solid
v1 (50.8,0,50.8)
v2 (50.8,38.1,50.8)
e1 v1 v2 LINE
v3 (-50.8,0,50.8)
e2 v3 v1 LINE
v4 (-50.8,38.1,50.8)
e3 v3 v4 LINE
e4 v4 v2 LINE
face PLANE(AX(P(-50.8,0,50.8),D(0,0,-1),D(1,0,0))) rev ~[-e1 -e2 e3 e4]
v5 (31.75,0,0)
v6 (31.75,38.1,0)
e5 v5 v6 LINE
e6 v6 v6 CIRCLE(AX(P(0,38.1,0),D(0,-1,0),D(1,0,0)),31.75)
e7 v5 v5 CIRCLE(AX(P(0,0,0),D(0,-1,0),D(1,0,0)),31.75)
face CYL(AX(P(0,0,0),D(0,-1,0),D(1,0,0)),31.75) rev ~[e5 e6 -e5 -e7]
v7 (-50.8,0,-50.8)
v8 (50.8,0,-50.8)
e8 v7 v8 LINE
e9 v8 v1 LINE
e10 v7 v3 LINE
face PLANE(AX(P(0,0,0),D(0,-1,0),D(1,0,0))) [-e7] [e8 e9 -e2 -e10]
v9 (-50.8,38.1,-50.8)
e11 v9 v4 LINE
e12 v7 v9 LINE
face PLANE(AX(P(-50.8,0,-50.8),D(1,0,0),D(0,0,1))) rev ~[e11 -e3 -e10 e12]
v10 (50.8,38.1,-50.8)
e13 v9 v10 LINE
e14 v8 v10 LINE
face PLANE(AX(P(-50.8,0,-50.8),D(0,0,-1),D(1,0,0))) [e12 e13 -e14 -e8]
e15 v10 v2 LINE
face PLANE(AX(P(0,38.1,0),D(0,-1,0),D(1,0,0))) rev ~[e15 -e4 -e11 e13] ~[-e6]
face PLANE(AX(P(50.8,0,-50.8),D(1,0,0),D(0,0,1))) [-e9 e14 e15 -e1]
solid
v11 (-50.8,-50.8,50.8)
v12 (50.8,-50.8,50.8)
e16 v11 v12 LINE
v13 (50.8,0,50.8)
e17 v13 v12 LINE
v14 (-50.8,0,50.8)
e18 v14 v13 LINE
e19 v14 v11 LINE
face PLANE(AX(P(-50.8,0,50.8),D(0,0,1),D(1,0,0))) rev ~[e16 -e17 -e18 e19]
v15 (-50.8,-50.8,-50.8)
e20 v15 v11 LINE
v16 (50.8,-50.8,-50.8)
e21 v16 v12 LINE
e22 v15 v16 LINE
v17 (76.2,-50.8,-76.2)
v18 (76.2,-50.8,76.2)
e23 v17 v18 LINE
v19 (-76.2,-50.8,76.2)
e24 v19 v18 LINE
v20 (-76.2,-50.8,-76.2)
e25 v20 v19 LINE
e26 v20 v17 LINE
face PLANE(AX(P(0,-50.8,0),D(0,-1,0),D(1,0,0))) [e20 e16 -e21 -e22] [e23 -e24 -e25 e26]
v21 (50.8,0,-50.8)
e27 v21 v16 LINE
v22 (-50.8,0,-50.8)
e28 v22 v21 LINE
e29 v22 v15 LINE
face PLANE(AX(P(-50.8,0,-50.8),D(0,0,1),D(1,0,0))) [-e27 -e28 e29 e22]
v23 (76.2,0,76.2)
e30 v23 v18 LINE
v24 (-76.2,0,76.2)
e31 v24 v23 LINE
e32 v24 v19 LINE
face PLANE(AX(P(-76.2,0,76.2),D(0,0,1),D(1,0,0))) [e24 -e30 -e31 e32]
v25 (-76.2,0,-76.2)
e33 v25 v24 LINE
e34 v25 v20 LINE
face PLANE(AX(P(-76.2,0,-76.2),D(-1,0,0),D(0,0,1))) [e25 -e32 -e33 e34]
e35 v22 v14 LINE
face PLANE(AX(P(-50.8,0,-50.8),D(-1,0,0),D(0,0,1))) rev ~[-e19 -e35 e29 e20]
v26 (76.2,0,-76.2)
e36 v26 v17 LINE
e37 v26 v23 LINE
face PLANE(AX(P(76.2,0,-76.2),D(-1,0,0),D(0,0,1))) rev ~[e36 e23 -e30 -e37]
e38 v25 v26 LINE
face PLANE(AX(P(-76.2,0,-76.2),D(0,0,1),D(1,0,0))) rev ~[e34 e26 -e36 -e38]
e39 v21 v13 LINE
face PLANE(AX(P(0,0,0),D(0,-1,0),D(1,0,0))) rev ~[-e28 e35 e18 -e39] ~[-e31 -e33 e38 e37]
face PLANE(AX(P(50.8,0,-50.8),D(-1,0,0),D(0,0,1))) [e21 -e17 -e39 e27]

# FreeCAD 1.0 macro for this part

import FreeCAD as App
import Part
import Sketcher
from FreeCAD import Vector
Q = App.Units.Quantity

doc = App.newDocument("Part")
body = doc.addObject("PartDesign::Body", "Body")
body.AllowCompound = True

# Sketch on XZ plane
sketch1 = body.newObject("Sketcher::SketchObject", "Sketch")
sketch1.AttachmentSupport = (doc.getObject("XZ_Plane"), [""])
sketch1.MapMode = "FlatFace"
sketch1.addGeometry(Part.LineSegment(Vector(-50.8, 50.8, 0), Vector(-50.8, -50.8, 0)), False)
sketch1.addGeometry(Part.LineSegment(Vector(-50.8, -50.8, 0), Vector(50.8, -50.8, 0)), False)
sketch1.addGeometry(Part.LineSegment(Vector(50.8, -50.8, 0), Vector(50.8, 50.8, 0)), False)
sketch1.addGeometry(Part.LineSegment(Vector(50.8, 50.8, 0), Vector(-50.8, 50.8, 0)), False)
sketch1.addGeometry(Part.Circle(Vector(0, 0, 0), Vector(0, 0, 1), 31.75), False)
sketch1.addConstraint(Sketcher.Constraint("Coincident", 0, 2, 1, 1))
sketch1.addConstraint(Sketcher.Constraint("Coincident", 1, 2, 2, 1))
sketch1.addConstraint(Sketcher.Constraint("Coincident", 2, 2, 3, 1))
sketch1.addConstraint(Sketcher.Constraint("Coincident", 3, 2, 0, 1))
sketch1.addConstraint(Sketcher.Constraint("Vertical", 0))
sketch1.addConstraint(Sketcher.Constraint("Horizontal", 1))
sketch1.addConstraint(Sketcher.Constraint("Vertical", 2))
sketch1.addConstraint(Sketcher.Constraint("Horizontal", 3))
sketch1.addConstraint(Sketcher.Constraint("Coincident", 4, 3, -1, 1))
sketch1.addConstraint(Sketcher.Constraint("Symmetric", 0, 2, 2, 2, -1, 1))
sketch1.addConstraint(Sketcher.Constraint("Equal", 3, 0))
sketch1.addConstraint(Sketcher.Constraint("Diameter", 4, Q("2.5 in")))
sketch1.addConstraint(Sketcher.Constraint("DistanceX", 1, 1, 1, 2, Q("4 in")))
pad1 = body.newObject("PartDesign::Pad", "Pad")
pad1.Profile = sketch1
pad1.Length = Q("1.5 in")
pad1.Reversed = True

# Sketch on XZ plane
sketch2 = body.newObject("Sketcher::SketchObject", "Sketch001")
sketch2.AttachmentSupport = (doc.getObject("XZ_Plane"), [""])
sketch2.MapMode = "FlatFace"
sketch2.addGeometry(Part.LineSegment(Vector(-76.2, 76.2, 0), Vector(-76.2, -76.2, 0)), False)
sketch2.addGeometry(Part.LineSegment(Vector(-76.2, -76.2, 0), Vector(76.2, -76.2, 0)), False)
sketch2.addGeometry(Part.LineSegment(Vector(76.2, -76.2, 0), Vector(76.2, 76.2, 0)), False)
sketch2.addGeometry(Part.LineSegment(Vector(76.2, 76.2, 0), Vector(-76.2, 76.2, 0)), False)
sketch2.addGeometry(Part.LineSegment(Vector(50.8, -50.8, 0), Vector(-50.8, -50.8, 0)), False)
sketch2.addGeometry(Part.LineSegment(Vector(-50.8, -50.8, 0), Vector(-50.8, 50.8, 0)), False)
sketch2.addGeometry(Part.LineSegment(Vector(-50.8, 50.8, 0), Vector(50.8, 50.8, 0)), False)
sketch2.addGeometry(Part.LineSegment(Vector(50.8, 50.8, 0), Vector(50.8, -50.8, 0)), False)
sketch2.addConstraint(Sketcher.Constraint("Coincident", 0, 2, 1, 1))
sketch2.addConstraint(Sketcher.Constraint("Coincident", 1, 2, 2, 1))
sketch2.addConstraint(Sketcher.Constraint("Coincident", 2, 2, 3, 1))
sketch2.addConstraint(Sketcher.Constraint("Coincident", 3, 2, 0, 1))
sketch2.addConstraint(Sketcher.Constraint("Coincident", 4, 2, 5, 1))
sketch2.addConstraint(Sketcher.Constraint("Coincident", 5, 2, 6, 1))
sketch2.addConstraint(Sketcher.Constraint("Coincident", 6, 2, 7, 1))
sketch2.addConstraint(Sketcher.Constraint("Coincident", 7, 2, 4, 1))
sketch2.addConstraint(Sketcher.Constraint("Vertical", 0))
sketch2.addConstraint(Sketcher.Constraint("Horizontal", 1))
sketch2.addConstraint(Sketcher.Constraint("Vertical", 2))
sketch2.addConstraint(Sketcher.Constraint("Horizontal", 3))
sketch2.addConstraint(Sketcher.Constraint("Horizontal", 4))
sketch2.addConstraint(Sketcher.Constraint("Vertical", 5))
sketch2.addConstraint(Sketcher.Constraint("Horizontal", 6))
sketch2.addConstraint(Sketcher.Constraint("Vertical", 7))
sketch2.addConstraint(Sketcher.Constraint("Symmetric", 0, 2, 2, 2, -1, 1))
sketch2.addConstraint(Sketcher.Constraint("Symmetric", 4, 2, 6, 2, -1, 1))
sketch2.addConstraint(Sketcher.Constraint("Equal", 3, 0))
sketch2.addConstraint(Sketcher.Constraint("Equal", 6, 5))
sketch2.addConstraint(Sketcher.Constraint("DistanceX", 1, 1, 1, 2, Q("6 in")))
sketch2.addConstraint(Sketcher.Constraint("DistanceX", 4, 2, 4, 1, Q("4 in")))
pad2 = body.newObject("PartDesign::Pad", "Pad001")
pad2.Profile = sketch2
pad2.Length = Q("2 in")

doc.recompute()
